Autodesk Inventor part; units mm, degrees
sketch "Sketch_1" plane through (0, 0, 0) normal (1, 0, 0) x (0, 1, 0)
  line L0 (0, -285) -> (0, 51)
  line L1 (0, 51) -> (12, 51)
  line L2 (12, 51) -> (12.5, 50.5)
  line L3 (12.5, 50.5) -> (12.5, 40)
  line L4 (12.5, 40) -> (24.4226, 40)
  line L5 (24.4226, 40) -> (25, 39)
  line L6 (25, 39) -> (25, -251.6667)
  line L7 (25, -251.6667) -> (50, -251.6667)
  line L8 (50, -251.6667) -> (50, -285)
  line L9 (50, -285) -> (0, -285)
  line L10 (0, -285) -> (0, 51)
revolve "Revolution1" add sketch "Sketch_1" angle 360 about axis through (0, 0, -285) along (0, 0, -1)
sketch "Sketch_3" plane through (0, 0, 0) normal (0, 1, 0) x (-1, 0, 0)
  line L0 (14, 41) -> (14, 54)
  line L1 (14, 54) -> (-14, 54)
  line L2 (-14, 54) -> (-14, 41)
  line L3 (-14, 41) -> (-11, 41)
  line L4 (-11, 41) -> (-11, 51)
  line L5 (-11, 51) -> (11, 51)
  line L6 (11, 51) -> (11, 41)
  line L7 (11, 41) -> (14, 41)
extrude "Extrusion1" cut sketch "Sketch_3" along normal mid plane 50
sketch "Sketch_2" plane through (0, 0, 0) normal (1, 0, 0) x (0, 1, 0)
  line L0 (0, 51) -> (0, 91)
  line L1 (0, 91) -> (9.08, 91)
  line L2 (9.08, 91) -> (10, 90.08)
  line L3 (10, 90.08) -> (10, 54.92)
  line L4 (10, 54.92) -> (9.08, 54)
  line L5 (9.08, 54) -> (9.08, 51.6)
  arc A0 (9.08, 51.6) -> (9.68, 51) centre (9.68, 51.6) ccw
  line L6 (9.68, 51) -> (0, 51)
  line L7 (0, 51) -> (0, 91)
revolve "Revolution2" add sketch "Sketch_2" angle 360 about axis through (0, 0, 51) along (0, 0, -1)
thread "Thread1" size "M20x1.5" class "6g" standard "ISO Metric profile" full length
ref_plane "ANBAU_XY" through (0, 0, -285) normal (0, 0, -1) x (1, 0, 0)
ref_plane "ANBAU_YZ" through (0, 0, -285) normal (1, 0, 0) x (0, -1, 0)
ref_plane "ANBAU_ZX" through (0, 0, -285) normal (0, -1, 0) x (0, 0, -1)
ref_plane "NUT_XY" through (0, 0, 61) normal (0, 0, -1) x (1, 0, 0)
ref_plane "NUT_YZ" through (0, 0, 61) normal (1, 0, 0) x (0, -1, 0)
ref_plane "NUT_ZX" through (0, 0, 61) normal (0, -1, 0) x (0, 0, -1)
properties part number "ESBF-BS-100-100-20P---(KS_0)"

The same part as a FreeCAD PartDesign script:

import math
import FreeCAD as App
import Part
import Sketcher
from FreeCAD import Vector
Q = App.Units.Quantity


def add_polygon(sketch, points):
    """Adds a closed chain of lines whose ends are joined by coincident constraints."""
    first, n = sketch.GeometryCount, len(points)
    for a, b in zip(points, points[1:] + points[:1]):
        sketch.addGeometry(Part.LineSegment(App.Vector(*a, 0), App.Vector(*b, 0)), False)
    for i in range(n):
        sketch.addConstraint(Sketcher.Constraint("Coincident", first + i, 2, first + (i + 1) % n, 1))

doc = App.newDocument("Part")
body = doc.addObject("PartDesign::Body", "Body")

# Sketch on YZ plane
sketch1 = doc.addObject("Sketcher::SketchObject", "Sketch")
body.addObject(sketch1)
sketch1.AttachmentSupport = (doc.YZ_Plane, [""])
sketch1.MapMode = "FlatFace"
add_polygon(sketch1, [(0, 51), (0, -285), (50, -285), (50, -251.6667), (25, -251.6667), (25, 39), (24.4226, 40), (12.5, 40), (12.5, 50.5), (12, 51)])  # lines 0-9
sketch1.addConstraint(Sketcher.Constraint("Vertical", 0))
sketch1.addConstraint(Sketcher.Constraint("Horizontal", 1))
sketch1.addConstraint(Sketcher.Constraint("Vertical", 2))
sketch1.addConstraint(Sketcher.Constraint("Horizontal", 3))
sketch1.addConstraint(Sketcher.Constraint("Vertical", 4))
sketch1.addConstraint(Sketcher.Constraint("Horizontal", 6))
sketch1.addConstraint(Sketcher.Constraint("Vertical", 7))
sketch1.addConstraint(Sketcher.Constraint("Horizontal", 9))
sketch1.addConstraint(Sketcher.Constraint("PointOnObject", 0, 2, -2))
sketch1.addConstraint(Sketcher.Constraint("DistanceX", 1, 1, 1, 2, 50.0))
sketch1.addConstraint(Sketcher.Constraint("DistanceX", 3, 2, 3, 1, 25.0))
sketch1.addConstraint(Sketcher.Constraint("DistanceX", 9, 2, 9, 1, 12.0))
sketch1.addConstraint(Sketcher.Constraint("DistanceY", 0, 2, 0, 1, 336.0))
sketch1.addConstraint(Sketcher.Constraint("Angle", 8, Q("135 deg")))
sketch1.addConstraint(Sketcher.Constraint("DistanceY", 7, 1, 7, 2, 10.5))
sketch1.addConstraint(Sketcher.Constraint("DistanceY", 0, 2, -1, 1, 285.0))
sketch1.addConstraint(Sketcher.Constraint("DistanceY", -1, 1, 4, 2, 39.0))
sketch1.addConstraint(Sketcher.Constraint("DistanceY", -1, 1, 5, 2, 40.0))
sketch1.addConstraint(Sketcher.Constraint("DistanceX", 6, 2, 6, 1, 11.9226))
sketch1.addConstraint(Sketcher.Constraint("DistanceY", 2, 1, 2, 2, 33.3333))
revolution = doc.addObject("PartDesign::Revolution", "Revolution")
body.addObject(revolution)
revolution.Profile = sketch1
revolution.ReferenceAxis = (sketch1, ["V_Axis"])
revolution.Angle = 360

# Sketch on XZ plane
sketch2 = doc.addObject("Sketcher::SketchObject", "Sketch001")
body.addObject(sketch2)
sketch2.AttachmentSupport = (doc.XZ_Plane, [""])
sketch2.MapMode = "FlatFace"
add_polygon(sketch2, [(-11, 41), (-14, 41), (-14, 54), (14, 54), (14, 41), (11, 41), (11, 51), (-11, 51)])  # lines 0-7
sketch2.addConstraint(Sketcher.Constraint("Horizontal", 0))
sketch2.addConstraint(Sketcher.Constraint("Vertical", 1))
sketch2.addConstraint(Sketcher.Constraint("Horizontal", 2))
sketch2.addConstraint(Sketcher.Constraint("Vertical", 3))
sketch2.addConstraint(Sketcher.Constraint("Horizontal", 4))
sketch2.addConstraint(Sketcher.Constraint("Vertical", 5))
sketch2.addConstraint(Sketcher.Constraint("Horizontal", 6))
sketch2.addConstraint(Sketcher.Constraint("Vertical", 7))
sketch2.addConstraint(Sketcher.Constraint("Symmetric", 0, 2, 3, 2, -2))
sketch2.addConstraint(Sketcher.Constraint("Equal", 0, 4))
sketch2.addConstraint(Sketcher.Constraint("DistanceX", 0, 2, 0, 1, 3.0))
sketch2.addConstraint(Sketcher.Constraint("DistanceX", 2, 1, 2, 2, 28.0))
sketch2.addConstraint(Sketcher.Constraint("DistanceY", 1, 1, 1, 2, 13.0))
sketch2.addConstraint(Sketcher.Constraint("DistanceY", 5, 1, 5, 2, 10.0))
sketch2.addConstraint(Sketcher.Constraint("DistanceY", -1, 1, 0, 2, 41.0))
pocket1 = doc.addObject("PartDesign::Pocket", "Pocket")
body.addObject(pocket1)
pocket1.Profile = sketch2
pocket1.Length = 50
pocket1.Midplane = True

# Sketch on YZ plane
sketch3 = doc.addObject("Sketcher::SketchObject", "Sketch002")
body.addObject(sketch3)
sketch3.AttachmentSupport = (doc.YZ_Plane, [""])
sketch3.MapMode = "FlatFace"
sketch3.addGeometry(Part.LineSegment(Vector(0, 91, 0), Vector(0, 51, 0)), False)
sketch3.addGeometry(Part.LineSegment(Vector(0, 51, 0), Vector(9.68, 51, 0)), False)
sketch3.addGeometry(Part.ArcOfCircle(Part.Circle(Vector(9.68, 51.6, 0), Vector(0, 0, 1), 0.6), math.radians(180), math.radians(270)), False)
sketch3.addGeometry(Part.LineSegment(Vector(9.08, 51.6, 0), Vector(9.08, 54, 0)), False)
sketch3.addGeometry(Part.LineSegment(Vector(9.08, 54, 0), Vector(10, 54.92, 0)), False)
sketch3.addGeometry(Part.LineSegment(Vector(10, 54.92, 0), Vector(10, 90.08, 0)), False)
sketch3.addGeometry(Part.LineSegment(Vector(10, 90.08, 0), Vector(9.08, 91, 0)), False)
sketch3.addGeometry(Part.LineSegment(Vector(9.08, 91, 0), Vector(0, 91, 0)), False)
sketch3.addConstraint(Sketcher.Constraint("Coincident", 0, 2, 1, 1))
sketch3.addConstraint(Sketcher.Constraint("Tangent", 1, 2, 2, 2))
sketch3.addConstraint(Sketcher.Constraint("Tangent", 2, 1, 3, 1))
sketch3.addConstraint(Sketcher.Constraint("Coincident", 3, 2, 4, 1))
sketch3.addConstraint(Sketcher.Constraint("Coincident", 4, 2, 5, 1))
sketch3.addConstraint(Sketcher.Constraint("Coincident", 5, 2, 6, 1))
sketch3.addConstraint(Sketcher.Constraint("Coincident", 6, 2, 7, 1))
sketch3.addConstraint(Sketcher.Constraint("Coincident", 7, 2, 0, 1))
sketch3.addConstraint(Sketcher.Constraint("Vertical", 0))
sketch3.addConstraint(Sketcher.Constraint("Horizontal", 1))
sketch3.addConstraint(Sketcher.Constraint("Vertical", 3))
sketch3.addConstraint(Sketcher.Constraint("Vertical", 5))
sketch3.addConstraint(Sketcher.Constraint("Horizontal", 7))
sketch3.addConstraint(Sketcher.Constraint("PointOnObject", 0, 2, -2))
sketch3.addConstraint(Sketcher.Constraint("Perpendicular", 4, 6))
sketch3.addConstraint(Sketcher.Constraint("Vertical", 3, 2, 6, 2))
sketch3.addConstraint(Sketcher.Constraint("Equal", 4, 6))
sketch3.addConstraint(Sketcher.Constraint("Radius", 2, 0.6))
sketch3.addConstraint(Sketcher.Constraint("DistanceY", 0, 2, 0, 1, 40.0))
sketch3.addConstraint(Sketcher.Constraint("DistanceY", 3, 1, 3, 2, 2.4))
sketch3.addConstraint(Sketcher.Constraint("DistanceY", -1, 1, 0, 2, 51.0))
sketch3.addConstraint(Sketcher.Constraint("DistanceX", -1, 1, 4, 2, 10.0))
sketch3.addConstraint(Sketcher.Constraint("DistanceX", 1, 1, 1, 2, 9.68))
revolution2 = doc.addObject("PartDesign::Revolution", "Revolution001")
body.addObject(revolution2)
revolution2.Profile = sketch3
revolution2.ReferenceAxis = (sketch3, ["V_Axis"])
revolution2.Angle = 360

doc.recompute()
